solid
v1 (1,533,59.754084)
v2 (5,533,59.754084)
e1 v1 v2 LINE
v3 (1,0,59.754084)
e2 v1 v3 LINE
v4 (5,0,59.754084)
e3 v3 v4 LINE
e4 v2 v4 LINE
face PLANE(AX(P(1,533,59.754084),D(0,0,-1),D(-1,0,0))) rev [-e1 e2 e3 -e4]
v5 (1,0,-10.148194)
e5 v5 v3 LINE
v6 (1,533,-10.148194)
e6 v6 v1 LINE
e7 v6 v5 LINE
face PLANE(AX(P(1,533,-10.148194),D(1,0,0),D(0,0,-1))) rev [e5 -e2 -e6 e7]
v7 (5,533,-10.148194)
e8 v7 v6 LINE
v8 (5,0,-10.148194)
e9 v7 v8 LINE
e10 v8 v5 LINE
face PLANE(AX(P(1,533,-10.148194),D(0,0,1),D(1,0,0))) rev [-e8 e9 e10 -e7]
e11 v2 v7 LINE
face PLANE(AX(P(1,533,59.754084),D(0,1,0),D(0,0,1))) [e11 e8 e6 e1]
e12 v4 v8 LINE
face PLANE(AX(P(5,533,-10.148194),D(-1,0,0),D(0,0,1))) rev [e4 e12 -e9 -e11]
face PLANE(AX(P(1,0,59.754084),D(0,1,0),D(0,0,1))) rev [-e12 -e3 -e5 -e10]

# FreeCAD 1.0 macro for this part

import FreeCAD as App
import Part
import Sketcher
Q = App.Units.Quantity


def add_polygon(sketch, points):
    """Adds a closed chain of lines whose ends are joined by coincident constraints."""
    first, n = sketch.GeometryCount, len(points)
    for a, b in zip(points, points[1:] + points[:1]):
        sketch.addGeometry(Part.LineSegment(App.Vector(*a, 0), App.Vector(*b, 0)), False)
    for i in range(n):
        sketch.addConstraint(Sketcher.Constraint("Coincident", first + i, 2, first + (i + 1) % n, 1))

doc = App.newDocument("Part")
body = doc.addObject("PartDesign::Body", "Body")

# Sketch on XZ plane
sketch1 = doc.addObject("Sketcher::SketchObject", "Sketch")
body.addObject(sketch1)
sketch1.AttachmentSupport = (doc.XZ_Plane, [""])
sketch1.MapMode = "FlatFace"
add_polygon(sketch1, [(1, -10.1), (1, 59.8), (5, 59.8), (5, -10.1)])  # lines 0-3
sketch1.addConstraint([
    Sketcher.Constraint("Vertical", 0),
    Sketcher.Constraint("Horizontal", 1),
    Sketcher.Constraint("Vertical", 2),
    Sketcher.Constraint("Horizontal", 3),
    Sketcher.Constraint("DistanceX", 1, 1, 1, 2, Q("4 mm")),
    Sketcher.Constraint("DistanceX", -1, 1, 0, 2, Q("1 mm")),
    Sketcher.Constraint("DistanceY", 0, 1, 0, 2, Q("69.902278 mm")),
    Sketcher.Constraint("DistanceY", -1, 1, 0, 2, Q("59.754084 mm")),
])
pad1 = doc.addObject("PartDesign::Pad", "Pad")
body.addObject(pad1)
pad1.Profile = sketch1
pad1.Length = 533
pad1.Reversed = True

doc.recompute()
